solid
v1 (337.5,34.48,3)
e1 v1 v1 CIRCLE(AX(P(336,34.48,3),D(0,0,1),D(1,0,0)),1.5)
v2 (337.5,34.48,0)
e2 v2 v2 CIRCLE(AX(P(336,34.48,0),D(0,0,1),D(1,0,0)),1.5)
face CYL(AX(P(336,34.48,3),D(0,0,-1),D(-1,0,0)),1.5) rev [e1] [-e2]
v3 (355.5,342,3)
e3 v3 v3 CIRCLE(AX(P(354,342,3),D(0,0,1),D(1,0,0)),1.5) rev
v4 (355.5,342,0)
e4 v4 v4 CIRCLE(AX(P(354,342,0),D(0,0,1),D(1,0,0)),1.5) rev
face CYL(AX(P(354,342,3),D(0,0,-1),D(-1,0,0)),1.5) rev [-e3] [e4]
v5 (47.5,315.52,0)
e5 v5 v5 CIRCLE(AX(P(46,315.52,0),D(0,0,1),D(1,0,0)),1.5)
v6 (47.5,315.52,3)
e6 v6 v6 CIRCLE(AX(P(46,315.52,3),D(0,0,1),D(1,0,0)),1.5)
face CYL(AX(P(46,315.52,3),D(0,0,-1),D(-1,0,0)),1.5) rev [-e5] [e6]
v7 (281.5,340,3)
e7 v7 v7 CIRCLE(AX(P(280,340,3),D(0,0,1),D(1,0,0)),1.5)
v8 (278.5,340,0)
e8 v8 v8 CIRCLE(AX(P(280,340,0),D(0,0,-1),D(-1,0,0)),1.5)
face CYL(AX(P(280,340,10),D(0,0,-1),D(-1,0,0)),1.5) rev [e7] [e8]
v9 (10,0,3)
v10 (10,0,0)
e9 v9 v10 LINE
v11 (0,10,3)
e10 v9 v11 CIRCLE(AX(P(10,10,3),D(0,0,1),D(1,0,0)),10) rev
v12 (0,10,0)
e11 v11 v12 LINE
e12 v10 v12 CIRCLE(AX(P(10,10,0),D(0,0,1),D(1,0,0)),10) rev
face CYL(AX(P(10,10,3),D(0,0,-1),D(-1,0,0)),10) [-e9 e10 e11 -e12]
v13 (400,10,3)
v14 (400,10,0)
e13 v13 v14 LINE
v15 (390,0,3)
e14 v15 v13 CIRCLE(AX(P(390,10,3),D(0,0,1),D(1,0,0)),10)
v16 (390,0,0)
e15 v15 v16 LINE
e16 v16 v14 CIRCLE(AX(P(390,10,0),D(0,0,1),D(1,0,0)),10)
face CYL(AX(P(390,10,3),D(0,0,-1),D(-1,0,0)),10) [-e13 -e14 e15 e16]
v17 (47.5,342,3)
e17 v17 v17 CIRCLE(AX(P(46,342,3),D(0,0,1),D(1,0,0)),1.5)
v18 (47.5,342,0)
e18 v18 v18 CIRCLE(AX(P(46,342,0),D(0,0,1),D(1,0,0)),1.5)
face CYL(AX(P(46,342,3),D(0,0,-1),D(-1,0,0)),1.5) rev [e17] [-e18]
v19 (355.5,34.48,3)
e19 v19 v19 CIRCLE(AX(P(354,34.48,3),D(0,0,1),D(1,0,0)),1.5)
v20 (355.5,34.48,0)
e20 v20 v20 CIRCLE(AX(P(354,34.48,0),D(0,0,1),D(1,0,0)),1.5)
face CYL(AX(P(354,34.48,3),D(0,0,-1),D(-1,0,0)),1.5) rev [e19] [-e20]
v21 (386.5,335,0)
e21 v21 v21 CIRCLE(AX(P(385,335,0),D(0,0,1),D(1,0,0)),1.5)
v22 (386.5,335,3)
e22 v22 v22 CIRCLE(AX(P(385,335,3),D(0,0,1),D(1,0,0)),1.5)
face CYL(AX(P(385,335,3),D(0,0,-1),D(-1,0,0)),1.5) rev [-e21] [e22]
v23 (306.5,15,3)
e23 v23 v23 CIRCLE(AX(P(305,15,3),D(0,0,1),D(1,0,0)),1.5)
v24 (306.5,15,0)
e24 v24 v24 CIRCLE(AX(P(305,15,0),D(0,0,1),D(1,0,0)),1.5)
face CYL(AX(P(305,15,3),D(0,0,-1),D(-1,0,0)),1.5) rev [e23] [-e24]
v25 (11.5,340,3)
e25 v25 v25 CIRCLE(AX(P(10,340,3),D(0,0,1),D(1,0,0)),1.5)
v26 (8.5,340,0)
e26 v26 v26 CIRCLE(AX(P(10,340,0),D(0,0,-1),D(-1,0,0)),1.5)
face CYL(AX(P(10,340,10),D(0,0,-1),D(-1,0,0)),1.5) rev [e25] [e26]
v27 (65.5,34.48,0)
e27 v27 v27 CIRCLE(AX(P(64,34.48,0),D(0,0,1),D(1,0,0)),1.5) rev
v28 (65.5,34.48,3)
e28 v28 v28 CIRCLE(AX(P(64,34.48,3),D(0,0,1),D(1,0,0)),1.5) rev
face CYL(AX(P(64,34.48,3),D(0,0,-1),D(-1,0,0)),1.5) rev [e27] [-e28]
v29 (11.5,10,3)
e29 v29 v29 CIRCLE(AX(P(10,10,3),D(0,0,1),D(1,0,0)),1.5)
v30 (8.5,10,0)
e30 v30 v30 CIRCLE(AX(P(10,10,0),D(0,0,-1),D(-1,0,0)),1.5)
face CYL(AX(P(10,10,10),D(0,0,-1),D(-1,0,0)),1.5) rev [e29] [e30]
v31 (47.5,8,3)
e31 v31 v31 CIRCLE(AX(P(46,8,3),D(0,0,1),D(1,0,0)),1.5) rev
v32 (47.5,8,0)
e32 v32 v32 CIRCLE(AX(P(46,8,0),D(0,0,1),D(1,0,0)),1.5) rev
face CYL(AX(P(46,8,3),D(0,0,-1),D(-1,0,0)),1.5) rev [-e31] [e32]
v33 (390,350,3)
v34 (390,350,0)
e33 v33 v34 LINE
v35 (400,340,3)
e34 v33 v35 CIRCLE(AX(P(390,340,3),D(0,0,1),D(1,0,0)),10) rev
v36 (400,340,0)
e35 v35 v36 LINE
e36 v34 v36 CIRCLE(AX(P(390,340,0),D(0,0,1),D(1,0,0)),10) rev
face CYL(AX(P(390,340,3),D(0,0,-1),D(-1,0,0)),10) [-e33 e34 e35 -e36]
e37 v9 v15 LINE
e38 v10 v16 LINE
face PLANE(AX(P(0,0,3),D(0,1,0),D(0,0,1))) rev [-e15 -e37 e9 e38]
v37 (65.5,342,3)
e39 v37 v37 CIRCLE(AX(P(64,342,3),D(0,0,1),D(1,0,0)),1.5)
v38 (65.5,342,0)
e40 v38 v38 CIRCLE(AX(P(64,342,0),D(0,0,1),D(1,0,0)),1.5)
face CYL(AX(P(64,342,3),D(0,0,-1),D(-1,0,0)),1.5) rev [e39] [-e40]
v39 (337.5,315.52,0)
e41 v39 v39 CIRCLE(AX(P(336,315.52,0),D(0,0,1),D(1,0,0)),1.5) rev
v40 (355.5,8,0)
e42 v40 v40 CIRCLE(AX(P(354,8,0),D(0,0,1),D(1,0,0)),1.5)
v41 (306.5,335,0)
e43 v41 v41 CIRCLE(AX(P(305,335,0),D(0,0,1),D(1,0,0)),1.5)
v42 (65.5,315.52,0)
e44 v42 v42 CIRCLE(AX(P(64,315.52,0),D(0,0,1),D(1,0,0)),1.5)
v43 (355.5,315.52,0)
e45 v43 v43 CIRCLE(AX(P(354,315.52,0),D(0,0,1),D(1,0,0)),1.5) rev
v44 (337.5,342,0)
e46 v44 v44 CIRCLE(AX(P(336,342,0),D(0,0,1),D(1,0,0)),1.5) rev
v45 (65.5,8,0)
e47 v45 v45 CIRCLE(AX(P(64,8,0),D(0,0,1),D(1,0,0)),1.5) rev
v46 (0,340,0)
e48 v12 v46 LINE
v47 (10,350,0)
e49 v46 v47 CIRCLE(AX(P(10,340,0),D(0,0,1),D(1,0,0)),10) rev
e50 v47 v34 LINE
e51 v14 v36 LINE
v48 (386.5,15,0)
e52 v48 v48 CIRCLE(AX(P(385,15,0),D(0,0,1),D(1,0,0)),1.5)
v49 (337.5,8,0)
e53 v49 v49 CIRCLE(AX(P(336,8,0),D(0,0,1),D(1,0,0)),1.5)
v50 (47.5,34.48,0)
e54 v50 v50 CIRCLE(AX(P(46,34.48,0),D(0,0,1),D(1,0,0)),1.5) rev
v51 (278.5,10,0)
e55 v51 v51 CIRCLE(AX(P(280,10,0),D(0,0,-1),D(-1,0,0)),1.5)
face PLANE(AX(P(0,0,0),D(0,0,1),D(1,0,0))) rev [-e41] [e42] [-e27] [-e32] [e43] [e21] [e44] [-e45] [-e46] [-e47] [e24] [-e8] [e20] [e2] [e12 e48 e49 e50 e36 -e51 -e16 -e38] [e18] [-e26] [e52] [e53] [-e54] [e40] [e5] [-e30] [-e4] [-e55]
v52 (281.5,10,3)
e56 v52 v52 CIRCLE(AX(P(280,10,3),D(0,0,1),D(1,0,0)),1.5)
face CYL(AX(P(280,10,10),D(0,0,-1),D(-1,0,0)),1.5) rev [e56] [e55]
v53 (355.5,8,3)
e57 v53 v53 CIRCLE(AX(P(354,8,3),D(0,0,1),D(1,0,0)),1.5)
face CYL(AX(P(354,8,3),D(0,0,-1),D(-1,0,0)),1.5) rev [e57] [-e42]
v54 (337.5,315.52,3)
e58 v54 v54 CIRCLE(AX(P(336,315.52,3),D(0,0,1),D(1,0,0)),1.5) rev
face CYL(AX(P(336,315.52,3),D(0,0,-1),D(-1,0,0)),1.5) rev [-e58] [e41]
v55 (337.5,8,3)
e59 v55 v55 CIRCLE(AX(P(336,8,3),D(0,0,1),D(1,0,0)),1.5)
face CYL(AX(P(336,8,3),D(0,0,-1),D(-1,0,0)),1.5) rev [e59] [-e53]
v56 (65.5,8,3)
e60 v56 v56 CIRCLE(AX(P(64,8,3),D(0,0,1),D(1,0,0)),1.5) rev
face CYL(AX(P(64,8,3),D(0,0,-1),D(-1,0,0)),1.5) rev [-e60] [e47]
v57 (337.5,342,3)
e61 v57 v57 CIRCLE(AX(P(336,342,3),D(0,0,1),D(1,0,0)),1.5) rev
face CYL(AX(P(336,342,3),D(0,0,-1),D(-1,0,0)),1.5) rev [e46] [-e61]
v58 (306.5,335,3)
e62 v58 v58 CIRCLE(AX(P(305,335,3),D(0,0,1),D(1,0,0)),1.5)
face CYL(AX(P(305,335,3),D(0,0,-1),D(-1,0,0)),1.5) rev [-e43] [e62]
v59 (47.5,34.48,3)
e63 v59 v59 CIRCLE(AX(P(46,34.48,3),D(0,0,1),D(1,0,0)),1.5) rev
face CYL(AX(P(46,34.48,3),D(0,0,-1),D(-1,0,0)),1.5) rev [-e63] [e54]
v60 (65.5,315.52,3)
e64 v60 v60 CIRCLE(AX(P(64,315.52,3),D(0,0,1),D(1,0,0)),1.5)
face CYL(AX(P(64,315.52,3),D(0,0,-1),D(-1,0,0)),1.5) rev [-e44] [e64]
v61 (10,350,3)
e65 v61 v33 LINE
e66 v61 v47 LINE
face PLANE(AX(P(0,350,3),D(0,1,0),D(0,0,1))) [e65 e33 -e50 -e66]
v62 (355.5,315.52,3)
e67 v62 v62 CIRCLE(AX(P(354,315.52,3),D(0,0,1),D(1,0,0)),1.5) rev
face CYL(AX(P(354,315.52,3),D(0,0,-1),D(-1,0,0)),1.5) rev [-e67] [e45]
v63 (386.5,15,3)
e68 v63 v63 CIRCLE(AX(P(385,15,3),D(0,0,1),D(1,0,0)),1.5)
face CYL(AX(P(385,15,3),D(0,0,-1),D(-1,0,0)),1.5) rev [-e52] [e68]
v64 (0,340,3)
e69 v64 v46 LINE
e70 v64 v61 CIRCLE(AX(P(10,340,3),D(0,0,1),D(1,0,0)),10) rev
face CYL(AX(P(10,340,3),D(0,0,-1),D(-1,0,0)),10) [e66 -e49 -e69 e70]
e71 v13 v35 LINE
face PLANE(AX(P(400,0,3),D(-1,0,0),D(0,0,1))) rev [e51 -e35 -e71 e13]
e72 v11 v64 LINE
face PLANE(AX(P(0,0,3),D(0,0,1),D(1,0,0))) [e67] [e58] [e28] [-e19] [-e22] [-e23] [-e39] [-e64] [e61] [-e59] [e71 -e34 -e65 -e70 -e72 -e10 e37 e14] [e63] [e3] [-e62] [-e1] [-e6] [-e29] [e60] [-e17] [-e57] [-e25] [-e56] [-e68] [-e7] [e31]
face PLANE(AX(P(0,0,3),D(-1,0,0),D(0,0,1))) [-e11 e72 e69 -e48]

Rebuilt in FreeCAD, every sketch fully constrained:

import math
import FreeCAD as App
import Part
import Sketcher
from FreeCAD import Vector
Q = App.Units.Quantity

doc = App.newDocument("Part")
body = doc.addObject("PartDesign::Body", "Body")

# Sketch on XY plane
sketch1 = body.newObject("Sketcher::SketchObject", "Sketch")
sketch1.AttachmentSupport = (doc.getObject("XY_Plane"), [""])
sketch1.MapMode = "FlatFace"
sketch1.addGeometry(Part.LineSegment(Vector(10, 0, 0), Vector(390, 0, 0)), False)
sketch1.addGeometry(Part.ArcOfCircle(Part.Circle(Vector(390, 10, 0), Vector(0, 0, 1), 10), math.radians(-90), math.radians(0)), False)
sketch1.addGeometry(Part.LineSegment(Vector(400, 10, 0), Vector(400, 340, 0)), False)
sketch1.addGeometry(Part.ArcOfCircle(Part.Circle(Vector(390, 340, 0), Vector(0, 0, 1), 10), math.radians(0), math.radians(90)), False)
sketch1.addGeometry(Part.LineSegment(Vector(390, 350, 0), Vector(10, 350, 0)), False)
sketch1.addGeometry(Part.ArcOfCircle(Part.Circle(Vector(10, 340, 0), Vector(0, 0, 1), 10), math.radians(90), math.radians(180)), False)
sketch1.addGeometry(Part.LineSegment(Vector(0, 340, 0), Vector(0, 10, 0)), False)
sketch1.addGeometry(Part.ArcOfCircle(Part.Circle(Vector(10, 10, 0), Vector(0, 0, 1), 10), math.radians(180), math.radians(270)), False)
sketch1.addGeometry(Part.Circle(Vector(46, 8, 0), Vector(0, 0, 1), 1.5), False)
sketch1.addGeometry(Part.Circle(Vector(64, 8, 0), Vector(0, 0, 1), 1.5), False)
sketch1.addGeometry(Part.Circle(Vector(46, 34.48, 0), Vector(0, 0, 1), 1.5), False)
sketch1.addGeometry(Part.Circle(Vector(64, 34.48, 0), Vector(0, 0, 1), 1.5), False)
sketch1.addGeometry(Part.Circle(Vector(305, 15, 0), Vector(0, 0, 1), 1.5), False)
sketch1.addGeometry(Part.Circle(Vector(336, 8, 0), Vector(0, 0, 1), 1.5), False)
sketch1.addGeometry(Part.Circle(Vector(336, 34.48, 0), Vector(0, 0, 1), 1.5), False)
sketch1.addGeometry(Part.Circle(Vector(354, 8, 0), Vector(0, 0, 1), 1.5), False)
sketch1.addGeometry(Part.Circle(Vector(385, 15, 0), Vector(0, 0, 1), 1.5), False)
sketch1.addGeometry(Part.Circle(Vector(354, 34.48, 0), Vector(0, 0, 1), 1.5), False)
sketch1.addGeometry(Part.Circle(Vector(46, 315.52, 0), Vector(0, 0, 1), 1.5), False)
sketch1.addGeometry(Part.Circle(Vector(64, 315.52, 0), Vector(0, 0, 1), 1.5), False)
sketch1.addGeometry(Part.Circle(Vector(46, 342, 0), Vector(0, 0, 1), 1.5), False)
sketch1.addGeometry(Part.Circle(Vector(64, 342, 0), Vector(0, 0, 1), 1.5), False)
sketch1.addGeometry(Part.Circle(Vector(336, 315.52, 0), Vector(0, 0, 1), 1.5), False)
sketch1.addGeometry(Part.Circle(Vector(305, 335, 0), Vector(0, 0, 1), 1.5), False)
sketch1.addGeometry(Part.Circle(Vector(336, 342, 0), Vector(0, 0, 1), 1.5), False)
sketch1.addGeometry(Part.Circle(Vector(354, 315.52, 0), Vector(0, 0, 1), 1.5), False)
sketch1.addGeometry(Part.Circle(Vector(354, 342, 0), Vector(0, 0, 1), 1.5), False)
sketch1.addGeometry(Part.Circle(Vector(385, 335, 0), Vector(0, 0, 1), 1.5), False)
sketch1.addConstraint(Sketcher.Constraint("Tangent", 0, 2, 1, 1))
sketch1.addConstraint(Sketcher.Constraint("Tangent", 1, 2, 2, 1))
sketch1.addConstraint(Sketcher.Constraint("Tangent", 2, 2, 3, 1))
sketch1.addConstraint(Sketcher.Constraint("Tangent", 3, 2, 4, 1))
sketch1.addConstraint(Sketcher.Constraint("Tangent", 4, 2, 5, 1))
sketch1.addConstraint(Sketcher.Constraint("Tangent", 5, 2, 6, 1))
sketch1.addConstraint(Sketcher.Constraint("Tangent", 6, 2, 7, 1))
sketch1.addConstraint(Sketcher.Constraint("Tangent", 7, 2, 0, 1))
sketch1.addConstraint(Sketcher.Constraint("Horizontal", 0))
sketch1.addConstraint(Sketcher.Constraint("Vertical", 2))
sketch1.addConstraint(Sketcher.Constraint("Horizontal", 4))
sketch1.addConstraint(Sketcher.Constraint("Vertical", 6))
sketch1.addConstraint(Sketcher.Constraint("Equal", 1, 3))
sketch1.addConstraint(Sketcher.Constraint("Equal", 3, 5))
sketch1.addConstraint(Sketcher.Constraint("Equal", 5, 7))
sketch1.addConstraint(Sketcher.Constraint("Equal", 8, 9))
sketch1.addConstraint(Sketcher.Constraint("Equal", 9, 10))
sketch1.addConstraint(Sketcher.Constraint("Equal", 10, 11))
sketch1.addConstraint(Sketcher.Constraint("Equal", 11, 12))
sketch1.addConstraint(Sketcher.Constraint("Equal", 12, 13))
sketch1.addConstraint(Sketcher.Constraint("Equal", 13, 14))
sketch1.addConstraint(Sketcher.Constraint("Equal", 14, 15))
sketch1.addConstraint(Sketcher.Constraint("Equal", 15, 16))
sketch1.addConstraint(Sketcher.Constraint("Equal", 16, 17))
sketch1.addConstraint(Sketcher.Constraint("Equal", 17, 18))
sketch1.addConstraint(Sketcher.Constraint("Equal", 18, 19))
sketch1.addConstraint(Sketcher.Constraint("Equal", 19, 20))
sketch1.addConstraint(Sketcher.Constraint("Equal", 20, 21))
sketch1.addConstraint(Sketcher.Constraint("Equal", 21, 22))
sketch1.addConstraint(Sketcher.Constraint("Equal", 22, 23))
sketch1.addConstraint(Sketcher.Constraint("Equal", 23, 24))
sketch1.addConstraint(Sketcher.Constraint("Equal", 24, 25))
sketch1.addConstraint(Sketcher.Constraint("Equal", 25, 26))
sketch1.addConstraint(Sketcher.Constraint("Equal", 26, 27))
sketch1.addConstraint(Sketcher.Constraint("PointOnObject", 0, 2, -1))
sketch1.addConstraint(Sketcher.Constraint("PointOnObject", 5, 2, -2))
sketch1.addConstraint(Sketcher.Constraint("Horizontal", 8, 3, 9, 3))
sketch1.addConstraint(Sketcher.Constraint("Horizontal", 10, 3, 11, 3))
sketch1.addConstraint(Sketcher.Constraint("Horizontal", 9, 3, 13, 3))
sketch1.addConstraint(Sketcher.Constraint("Horizontal", 11, 3, 14, 3))
sketch1.addConstraint(Sketcher.Constraint("Horizontal", 13, 3, 15, 3))
sketch1.addConstraint(Sketcher.Constraint("Horizontal", 12, 3, 16, 3))
sketch1.addConstraint(Sketcher.Constraint("Horizontal", 14, 3, 17, 3))
sketch1.addConstraint(Sketcher.Constraint("Horizontal", 18, 3, 19, 3))
sketch1.addConstraint(Sketcher.Constraint("Horizontal", 20, 3, 21, 3))
sketch1.addConstraint(Sketcher.Constraint("Horizontal", 19, 3, 22, 3))
sketch1.addConstraint(Sketcher.Constraint("Horizontal", 21, 3, 24, 3))
sketch1.addConstraint(Sketcher.Constraint("Horizontal", 22, 3, 25, 3))
sketch1.addConstraint(Sketcher.Constraint("Horizontal", 24, 3, 26, 3))
sketch1.addConstraint(Sketcher.Constraint("Horizontal", 23, 3, 27, 3))
sketch1.addConstraint(Sketcher.Constraint("Vertical", 8, 3, 10, 3))
sketch1.addConstraint(Sketcher.Constraint("Vertical", 9, 3, 11, 3))
sketch1.addConstraint(Sketcher.Constraint("Vertical", 13, 3, 14, 3))
sketch1.addConstraint(Sketcher.Constraint("Vertical", 15, 3, 17, 3))
sketch1.addConstraint(Sketcher.Constraint("Vertical", 10, 3, 18, 3))
sketch1.addConstraint(Sketcher.Constraint("Vertical", 11, 3, 19, 3))
sketch1.addConstraint(Sketcher.Constraint("Vertical", 18, 3, 20, 3))
sketch1.addConstraint(Sketcher.Constraint("Vertical", 19, 3, 21, 3))
sketch1.addConstraint(Sketcher.Constraint("Vertical", 14, 3, 22, 3))
sketch1.addConstraint(Sketcher.Constraint("Vertical", 12, 3, 23, 3))
sketch1.addConstraint(Sketcher.Constraint("Vertical", 22, 3, 24, 3))
sketch1.addConstraint(Sketcher.Constraint("Vertical", 17, 3, 25, 3))
sketch1.addConstraint(Sketcher.Constraint("Vertical", 25, 3, 26, 3))
sketch1.addConstraint(Sketcher.Constraint("Vertical", 16, 3, 27, 3))
sketch1.addConstraint(Sketcher.Constraint("Diameter", 8, Q("3 mm")))
sketch1.addConstraint(Sketcher.Constraint("Radius", 1, Q("10 mm")))
sketch1.addConstraint(Sketcher.Constraint("DistanceX", 0, 1, 0, 2, Q("380 mm")))
sketch1.addConstraint(Sketcher.Constraint("DistanceY", 2, 1, 2, 2, Q("330 mm")))
sketch1.addConstraint(Sketcher.Constraint("DistanceX", -1, 1, 8, 3, Q("46 mm")))
sketch1.addConstraint(Sketcher.Constraint("DistanceY", -1, 1, 8, 3, Q("8 mm")))
sketch1.addConstraint(Sketcher.Constraint("DistanceX", -1, 1, 9, 3, Q("64 mm")))
sketch1.addConstraint(Sketcher.Constraint("DistanceX", -1, 1, 12, 3, Q("305 mm")))
sketch1.addConstraint(Sketcher.Constraint("DistanceY", -1, 1, 12, 3, Q("15 mm")))
sketch1.addConstraint(Sketcher.Constraint("DistanceX", -1, 1, 13, 3, Q("336 mm")))
sketch1.addConstraint(Sketcher.Constraint("DistanceX", -1, 1, 15, 3, Q("354 mm")))
sketch1.addConstraint(Sketcher.Constraint("DistanceX", -1, 1, 16, 3, Q("385 mm")))
sketch1.addConstraint(Sketcher.Constraint("DistanceY", -1, 1, 20, 3, Q("342 mm")))
sketch1.addConstraint(Sketcher.Constraint("DistanceY", -1, 1, 23, 3, Q("335 mm")))
sketch1.addConstraint(Sketcher.Constraint("DistanceY", -1, 1, 10, 3, Q("34.48 mm")))
sketch1.addConstraint(Sketcher.Constraint("DistanceY", -1, 1, 18, 3, Q("315.52 mm")))
pad1 = body.newObject("PartDesign::Pad", "Pad")
pad1.Profile = sketch1
pad1.Length = 3

# Sketch on XY plane
sketch2 = body.newObject("Sketcher::SketchObject", "Sketch001")
sketch2.AttachmentSupport = (doc.getObject("XY_Plane"), [""])
sketch2.MapMode = "FlatFace"
sketch2.addGeometry(Part.Circle(Vector(10, 10, 0), Vector(0, 0, 1), 1.5), False)
sketch2.addGeometry(Part.Circle(Vector(10, 340, 0), Vector(0, 0, 1), 1.5), False)
sketch2.addGeometry(Part.Circle(Vector(280, 340, 0), Vector(0, 0, 1), 1.5), False)
sketch2.addGeometry(Part.Circle(Vector(280, 10, 0), Vector(0, 0, 1), 1.5), False)
sketch2.addConstraint(Sketcher.Constraint("Equal", 0, 1))
sketch2.addConstraint(Sketcher.Constraint("Equal", 1, 2))
sketch2.addConstraint(Sketcher.Constraint("Equal", 2, 3))
sketch2.addConstraint(Sketcher.Constraint("Horizontal", 1, 3, 2, 3))
sketch2.addConstraint(Sketcher.Constraint("Horizontal", 0, 3, 3, 3))
sketch2.addConstraint(Sketcher.Constraint("Vertical", 0, 3, 1, 3))
sketch2.addConstraint(Sketcher.Constraint("Vertical", 2, 3, 3, 3))
sketch2.addConstraint(Sketcher.Constraint("Diameter", 0, Q("3 mm")))
sketch2.addConstraint(Sketcher.Constraint("DistanceX", -1, 1, 0, 3, Q("10 mm")))
sketch2.addConstraint(Sketcher.Constraint("DistanceY", -1, 1, 0, 3, Q("10 mm")))
sketch2.addConstraint(Sketcher.Constraint("DistanceY", -1, 1, 1, 3, Q("340 mm")))
sketch2.addConstraint(Sketcher.Constraint("DistanceX", -1, 1, 2, 3, Q("280 mm")))
pocket1 = body.newObject("PartDesign::Pocket", "Pocket")
pocket1.Profile = sketch2
pocket1.Length = 10
pocket1.Reversed = True

doc.recompute()
